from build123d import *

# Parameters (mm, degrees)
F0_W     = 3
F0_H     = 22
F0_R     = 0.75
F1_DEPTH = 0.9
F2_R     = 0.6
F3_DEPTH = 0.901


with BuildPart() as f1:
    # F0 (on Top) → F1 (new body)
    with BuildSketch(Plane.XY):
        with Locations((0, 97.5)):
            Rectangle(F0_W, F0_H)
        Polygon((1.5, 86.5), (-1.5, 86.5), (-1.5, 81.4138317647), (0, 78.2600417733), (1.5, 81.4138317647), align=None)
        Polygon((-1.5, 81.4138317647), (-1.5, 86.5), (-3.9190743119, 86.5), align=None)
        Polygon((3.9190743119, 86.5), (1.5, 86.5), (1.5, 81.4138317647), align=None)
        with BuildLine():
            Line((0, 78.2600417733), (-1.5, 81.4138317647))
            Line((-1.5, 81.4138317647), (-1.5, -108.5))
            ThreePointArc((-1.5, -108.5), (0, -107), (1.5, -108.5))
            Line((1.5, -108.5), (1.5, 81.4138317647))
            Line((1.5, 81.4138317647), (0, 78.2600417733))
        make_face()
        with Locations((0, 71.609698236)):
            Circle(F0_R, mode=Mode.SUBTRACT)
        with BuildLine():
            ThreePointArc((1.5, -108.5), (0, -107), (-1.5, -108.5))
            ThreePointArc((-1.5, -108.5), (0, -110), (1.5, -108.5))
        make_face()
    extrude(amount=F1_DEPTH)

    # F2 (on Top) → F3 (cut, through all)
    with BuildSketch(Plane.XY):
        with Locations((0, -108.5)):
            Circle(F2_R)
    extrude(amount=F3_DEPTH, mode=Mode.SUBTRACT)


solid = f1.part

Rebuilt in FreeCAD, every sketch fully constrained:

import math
import FreeCAD as App
import Part
import Sketcher

V = App.Vector
Q = App.Units.Quantity

doc = App.newDocument("Part")
body = doc.addObject("PartDesign::Body", "Body")

sketch1 = body.newObject("Sketcher::SketchObject", "Sketch")
sketch1.AttachmentSupport = (doc.getObject("XY_Plane"), [""])
sketch1.MapMode = "FlatFace"
sketch1.addGeometry([
    Part.LineSegment(V(-1.5, 108.5, 0), V(-1.5, 86.5, 0)),
    Part.LineSegment(V(-1.5, 86.5, 0), V(-3.919074, 86.5, 0)),
    Part.LineSegment(V(-3.919074, 86.5, 0), V(-1.5, 81.413832, 0)),
    Part.LineSegment(V(-1.5, 81.413832, 0), V(-1.5, -108.5, 0)),
    Part.ArcOfCircle(Part.Circle(V(0, -108.5, 0), V(0, 0, 1), 1.5), math.radians(180), math.radians(360)),
    Part.LineSegment(V(1.5, -108.5, 0), V(1.5, 81.413832, 0)),
    Part.LineSegment(V(1.5, 81.413832, 0), V(3.919074, 86.5, 0)),
    Part.LineSegment(V(3.919074, 86.5, 0), V(1.5, 86.5, 0)),
    Part.LineSegment(V(1.5, 86.5, 0), V(1.5, 108.5, 0)),
    Part.LineSegment(V(1.5, 108.5, 0), V(-1.5, 108.5, 0)),
    Part.Circle(V(0, 71.609698, 0), V(0, 0, 1), 0.75),
], False)
sketch1.addConstraint([
    Sketcher.Constraint("Coincident", 0, 2, 1, 1),
    Sketcher.Constraint("Coincident", 1, 2, 2, 1),
    Sketcher.Constraint("Coincident", 2, 2, 3, 1),
    Sketcher.Constraint("Tangent", 3, 2, 4, 1),
    Sketcher.Constraint("Tangent", 4, 2, 5, 1),
    Sketcher.Constraint("Coincident", 5, 2, 6, 1),
    Sketcher.Constraint("Coincident", 6, 2, 7, 1),
    Sketcher.Constraint("Coincident", 7, 2, 8, 1),
    Sketcher.Constraint("Coincident", 8, 2, 9, 1),
    Sketcher.Constraint("Coincident", 9, 2, 0, 1),
    Sketcher.Constraint("Vertical", 0),
    Sketcher.Constraint("Horizontal", 1),
    Sketcher.Constraint("Vertical", 3),
    Sketcher.Constraint("Vertical", 5),
    Sketcher.Constraint("Horizontal", 7),
    Sketcher.Constraint("Vertical", 8),
    Sketcher.Constraint("Horizontal", 9),
    Sketcher.Constraint("Symmetric", 3, 2, 8, 2, -1, 1),
    Sketcher.Constraint("Symmetric", 2, 2, 5, 2, -2),
    Sketcher.Constraint("Symmetric", 1, 2, 6, 2, -2),
    Sketcher.Constraint("PointOnObject", 10, 3, -2),
    Sketcher.Constraint("Vertical", 0, 2, 2, 2),
    Sketcher.Constraint("Diameter", 10, Q("1.5 mm")),
    Sketcher.Constraint("Radius", 4, Q("1.5 mm")),
    Sketcher.Constraint("DistanceY", 0, 2, 0, 1, Q("22 mm")),
    Sketcher.Constraint("DistanceY", 4, 3, 0, 2, Q("195 mm")),
    Sketcher.Constraint("DistanceY", 3, 2, 3, 1, Q("189.913832 mm")),
    Sketcher.Constraint("DistanceY", -1, 1, 10, 3, Q("71.609698 mm")),
    Sketcher.Constraint("DistanceX", 1, 2, 1, 1, Q("2.419074 mm")),
])
pad1 = body.newObject("PartDesign::Pad", "Pad")
pad1.Profile = sketch1
pad1.Length = 0.9

sketch2 = body.newObject("Sketcher::SketchObject", "Sketch001")
sketch2.AttachmentSupport = (doc.getObject("XY_Plane"), [""])
sketch2.MapMode = "FlatFace"
sketch2.addGeometry(Part.Circle(V(0, -108.5, 0), V(0, 0, 1), 0.6), False)
sketch2.addConstraint([
    Sketcher.Constraint("PointOnObject", 0, 3, -2),
    Sketcher.Constraint("Diameter", 0, Q("1.2 mm")),
    Sketcher.Constraint("DistanceY", 0, 3, -1, 1, Q("108.5 mm")),
])
pocket1 = body.newObject("PartDesign::Pocket", "Pocket")
pocket1.Profile = sketch2
pocket1.Type = "ThroughAll"
pocket1.Reversed = True

doc.recompute()
